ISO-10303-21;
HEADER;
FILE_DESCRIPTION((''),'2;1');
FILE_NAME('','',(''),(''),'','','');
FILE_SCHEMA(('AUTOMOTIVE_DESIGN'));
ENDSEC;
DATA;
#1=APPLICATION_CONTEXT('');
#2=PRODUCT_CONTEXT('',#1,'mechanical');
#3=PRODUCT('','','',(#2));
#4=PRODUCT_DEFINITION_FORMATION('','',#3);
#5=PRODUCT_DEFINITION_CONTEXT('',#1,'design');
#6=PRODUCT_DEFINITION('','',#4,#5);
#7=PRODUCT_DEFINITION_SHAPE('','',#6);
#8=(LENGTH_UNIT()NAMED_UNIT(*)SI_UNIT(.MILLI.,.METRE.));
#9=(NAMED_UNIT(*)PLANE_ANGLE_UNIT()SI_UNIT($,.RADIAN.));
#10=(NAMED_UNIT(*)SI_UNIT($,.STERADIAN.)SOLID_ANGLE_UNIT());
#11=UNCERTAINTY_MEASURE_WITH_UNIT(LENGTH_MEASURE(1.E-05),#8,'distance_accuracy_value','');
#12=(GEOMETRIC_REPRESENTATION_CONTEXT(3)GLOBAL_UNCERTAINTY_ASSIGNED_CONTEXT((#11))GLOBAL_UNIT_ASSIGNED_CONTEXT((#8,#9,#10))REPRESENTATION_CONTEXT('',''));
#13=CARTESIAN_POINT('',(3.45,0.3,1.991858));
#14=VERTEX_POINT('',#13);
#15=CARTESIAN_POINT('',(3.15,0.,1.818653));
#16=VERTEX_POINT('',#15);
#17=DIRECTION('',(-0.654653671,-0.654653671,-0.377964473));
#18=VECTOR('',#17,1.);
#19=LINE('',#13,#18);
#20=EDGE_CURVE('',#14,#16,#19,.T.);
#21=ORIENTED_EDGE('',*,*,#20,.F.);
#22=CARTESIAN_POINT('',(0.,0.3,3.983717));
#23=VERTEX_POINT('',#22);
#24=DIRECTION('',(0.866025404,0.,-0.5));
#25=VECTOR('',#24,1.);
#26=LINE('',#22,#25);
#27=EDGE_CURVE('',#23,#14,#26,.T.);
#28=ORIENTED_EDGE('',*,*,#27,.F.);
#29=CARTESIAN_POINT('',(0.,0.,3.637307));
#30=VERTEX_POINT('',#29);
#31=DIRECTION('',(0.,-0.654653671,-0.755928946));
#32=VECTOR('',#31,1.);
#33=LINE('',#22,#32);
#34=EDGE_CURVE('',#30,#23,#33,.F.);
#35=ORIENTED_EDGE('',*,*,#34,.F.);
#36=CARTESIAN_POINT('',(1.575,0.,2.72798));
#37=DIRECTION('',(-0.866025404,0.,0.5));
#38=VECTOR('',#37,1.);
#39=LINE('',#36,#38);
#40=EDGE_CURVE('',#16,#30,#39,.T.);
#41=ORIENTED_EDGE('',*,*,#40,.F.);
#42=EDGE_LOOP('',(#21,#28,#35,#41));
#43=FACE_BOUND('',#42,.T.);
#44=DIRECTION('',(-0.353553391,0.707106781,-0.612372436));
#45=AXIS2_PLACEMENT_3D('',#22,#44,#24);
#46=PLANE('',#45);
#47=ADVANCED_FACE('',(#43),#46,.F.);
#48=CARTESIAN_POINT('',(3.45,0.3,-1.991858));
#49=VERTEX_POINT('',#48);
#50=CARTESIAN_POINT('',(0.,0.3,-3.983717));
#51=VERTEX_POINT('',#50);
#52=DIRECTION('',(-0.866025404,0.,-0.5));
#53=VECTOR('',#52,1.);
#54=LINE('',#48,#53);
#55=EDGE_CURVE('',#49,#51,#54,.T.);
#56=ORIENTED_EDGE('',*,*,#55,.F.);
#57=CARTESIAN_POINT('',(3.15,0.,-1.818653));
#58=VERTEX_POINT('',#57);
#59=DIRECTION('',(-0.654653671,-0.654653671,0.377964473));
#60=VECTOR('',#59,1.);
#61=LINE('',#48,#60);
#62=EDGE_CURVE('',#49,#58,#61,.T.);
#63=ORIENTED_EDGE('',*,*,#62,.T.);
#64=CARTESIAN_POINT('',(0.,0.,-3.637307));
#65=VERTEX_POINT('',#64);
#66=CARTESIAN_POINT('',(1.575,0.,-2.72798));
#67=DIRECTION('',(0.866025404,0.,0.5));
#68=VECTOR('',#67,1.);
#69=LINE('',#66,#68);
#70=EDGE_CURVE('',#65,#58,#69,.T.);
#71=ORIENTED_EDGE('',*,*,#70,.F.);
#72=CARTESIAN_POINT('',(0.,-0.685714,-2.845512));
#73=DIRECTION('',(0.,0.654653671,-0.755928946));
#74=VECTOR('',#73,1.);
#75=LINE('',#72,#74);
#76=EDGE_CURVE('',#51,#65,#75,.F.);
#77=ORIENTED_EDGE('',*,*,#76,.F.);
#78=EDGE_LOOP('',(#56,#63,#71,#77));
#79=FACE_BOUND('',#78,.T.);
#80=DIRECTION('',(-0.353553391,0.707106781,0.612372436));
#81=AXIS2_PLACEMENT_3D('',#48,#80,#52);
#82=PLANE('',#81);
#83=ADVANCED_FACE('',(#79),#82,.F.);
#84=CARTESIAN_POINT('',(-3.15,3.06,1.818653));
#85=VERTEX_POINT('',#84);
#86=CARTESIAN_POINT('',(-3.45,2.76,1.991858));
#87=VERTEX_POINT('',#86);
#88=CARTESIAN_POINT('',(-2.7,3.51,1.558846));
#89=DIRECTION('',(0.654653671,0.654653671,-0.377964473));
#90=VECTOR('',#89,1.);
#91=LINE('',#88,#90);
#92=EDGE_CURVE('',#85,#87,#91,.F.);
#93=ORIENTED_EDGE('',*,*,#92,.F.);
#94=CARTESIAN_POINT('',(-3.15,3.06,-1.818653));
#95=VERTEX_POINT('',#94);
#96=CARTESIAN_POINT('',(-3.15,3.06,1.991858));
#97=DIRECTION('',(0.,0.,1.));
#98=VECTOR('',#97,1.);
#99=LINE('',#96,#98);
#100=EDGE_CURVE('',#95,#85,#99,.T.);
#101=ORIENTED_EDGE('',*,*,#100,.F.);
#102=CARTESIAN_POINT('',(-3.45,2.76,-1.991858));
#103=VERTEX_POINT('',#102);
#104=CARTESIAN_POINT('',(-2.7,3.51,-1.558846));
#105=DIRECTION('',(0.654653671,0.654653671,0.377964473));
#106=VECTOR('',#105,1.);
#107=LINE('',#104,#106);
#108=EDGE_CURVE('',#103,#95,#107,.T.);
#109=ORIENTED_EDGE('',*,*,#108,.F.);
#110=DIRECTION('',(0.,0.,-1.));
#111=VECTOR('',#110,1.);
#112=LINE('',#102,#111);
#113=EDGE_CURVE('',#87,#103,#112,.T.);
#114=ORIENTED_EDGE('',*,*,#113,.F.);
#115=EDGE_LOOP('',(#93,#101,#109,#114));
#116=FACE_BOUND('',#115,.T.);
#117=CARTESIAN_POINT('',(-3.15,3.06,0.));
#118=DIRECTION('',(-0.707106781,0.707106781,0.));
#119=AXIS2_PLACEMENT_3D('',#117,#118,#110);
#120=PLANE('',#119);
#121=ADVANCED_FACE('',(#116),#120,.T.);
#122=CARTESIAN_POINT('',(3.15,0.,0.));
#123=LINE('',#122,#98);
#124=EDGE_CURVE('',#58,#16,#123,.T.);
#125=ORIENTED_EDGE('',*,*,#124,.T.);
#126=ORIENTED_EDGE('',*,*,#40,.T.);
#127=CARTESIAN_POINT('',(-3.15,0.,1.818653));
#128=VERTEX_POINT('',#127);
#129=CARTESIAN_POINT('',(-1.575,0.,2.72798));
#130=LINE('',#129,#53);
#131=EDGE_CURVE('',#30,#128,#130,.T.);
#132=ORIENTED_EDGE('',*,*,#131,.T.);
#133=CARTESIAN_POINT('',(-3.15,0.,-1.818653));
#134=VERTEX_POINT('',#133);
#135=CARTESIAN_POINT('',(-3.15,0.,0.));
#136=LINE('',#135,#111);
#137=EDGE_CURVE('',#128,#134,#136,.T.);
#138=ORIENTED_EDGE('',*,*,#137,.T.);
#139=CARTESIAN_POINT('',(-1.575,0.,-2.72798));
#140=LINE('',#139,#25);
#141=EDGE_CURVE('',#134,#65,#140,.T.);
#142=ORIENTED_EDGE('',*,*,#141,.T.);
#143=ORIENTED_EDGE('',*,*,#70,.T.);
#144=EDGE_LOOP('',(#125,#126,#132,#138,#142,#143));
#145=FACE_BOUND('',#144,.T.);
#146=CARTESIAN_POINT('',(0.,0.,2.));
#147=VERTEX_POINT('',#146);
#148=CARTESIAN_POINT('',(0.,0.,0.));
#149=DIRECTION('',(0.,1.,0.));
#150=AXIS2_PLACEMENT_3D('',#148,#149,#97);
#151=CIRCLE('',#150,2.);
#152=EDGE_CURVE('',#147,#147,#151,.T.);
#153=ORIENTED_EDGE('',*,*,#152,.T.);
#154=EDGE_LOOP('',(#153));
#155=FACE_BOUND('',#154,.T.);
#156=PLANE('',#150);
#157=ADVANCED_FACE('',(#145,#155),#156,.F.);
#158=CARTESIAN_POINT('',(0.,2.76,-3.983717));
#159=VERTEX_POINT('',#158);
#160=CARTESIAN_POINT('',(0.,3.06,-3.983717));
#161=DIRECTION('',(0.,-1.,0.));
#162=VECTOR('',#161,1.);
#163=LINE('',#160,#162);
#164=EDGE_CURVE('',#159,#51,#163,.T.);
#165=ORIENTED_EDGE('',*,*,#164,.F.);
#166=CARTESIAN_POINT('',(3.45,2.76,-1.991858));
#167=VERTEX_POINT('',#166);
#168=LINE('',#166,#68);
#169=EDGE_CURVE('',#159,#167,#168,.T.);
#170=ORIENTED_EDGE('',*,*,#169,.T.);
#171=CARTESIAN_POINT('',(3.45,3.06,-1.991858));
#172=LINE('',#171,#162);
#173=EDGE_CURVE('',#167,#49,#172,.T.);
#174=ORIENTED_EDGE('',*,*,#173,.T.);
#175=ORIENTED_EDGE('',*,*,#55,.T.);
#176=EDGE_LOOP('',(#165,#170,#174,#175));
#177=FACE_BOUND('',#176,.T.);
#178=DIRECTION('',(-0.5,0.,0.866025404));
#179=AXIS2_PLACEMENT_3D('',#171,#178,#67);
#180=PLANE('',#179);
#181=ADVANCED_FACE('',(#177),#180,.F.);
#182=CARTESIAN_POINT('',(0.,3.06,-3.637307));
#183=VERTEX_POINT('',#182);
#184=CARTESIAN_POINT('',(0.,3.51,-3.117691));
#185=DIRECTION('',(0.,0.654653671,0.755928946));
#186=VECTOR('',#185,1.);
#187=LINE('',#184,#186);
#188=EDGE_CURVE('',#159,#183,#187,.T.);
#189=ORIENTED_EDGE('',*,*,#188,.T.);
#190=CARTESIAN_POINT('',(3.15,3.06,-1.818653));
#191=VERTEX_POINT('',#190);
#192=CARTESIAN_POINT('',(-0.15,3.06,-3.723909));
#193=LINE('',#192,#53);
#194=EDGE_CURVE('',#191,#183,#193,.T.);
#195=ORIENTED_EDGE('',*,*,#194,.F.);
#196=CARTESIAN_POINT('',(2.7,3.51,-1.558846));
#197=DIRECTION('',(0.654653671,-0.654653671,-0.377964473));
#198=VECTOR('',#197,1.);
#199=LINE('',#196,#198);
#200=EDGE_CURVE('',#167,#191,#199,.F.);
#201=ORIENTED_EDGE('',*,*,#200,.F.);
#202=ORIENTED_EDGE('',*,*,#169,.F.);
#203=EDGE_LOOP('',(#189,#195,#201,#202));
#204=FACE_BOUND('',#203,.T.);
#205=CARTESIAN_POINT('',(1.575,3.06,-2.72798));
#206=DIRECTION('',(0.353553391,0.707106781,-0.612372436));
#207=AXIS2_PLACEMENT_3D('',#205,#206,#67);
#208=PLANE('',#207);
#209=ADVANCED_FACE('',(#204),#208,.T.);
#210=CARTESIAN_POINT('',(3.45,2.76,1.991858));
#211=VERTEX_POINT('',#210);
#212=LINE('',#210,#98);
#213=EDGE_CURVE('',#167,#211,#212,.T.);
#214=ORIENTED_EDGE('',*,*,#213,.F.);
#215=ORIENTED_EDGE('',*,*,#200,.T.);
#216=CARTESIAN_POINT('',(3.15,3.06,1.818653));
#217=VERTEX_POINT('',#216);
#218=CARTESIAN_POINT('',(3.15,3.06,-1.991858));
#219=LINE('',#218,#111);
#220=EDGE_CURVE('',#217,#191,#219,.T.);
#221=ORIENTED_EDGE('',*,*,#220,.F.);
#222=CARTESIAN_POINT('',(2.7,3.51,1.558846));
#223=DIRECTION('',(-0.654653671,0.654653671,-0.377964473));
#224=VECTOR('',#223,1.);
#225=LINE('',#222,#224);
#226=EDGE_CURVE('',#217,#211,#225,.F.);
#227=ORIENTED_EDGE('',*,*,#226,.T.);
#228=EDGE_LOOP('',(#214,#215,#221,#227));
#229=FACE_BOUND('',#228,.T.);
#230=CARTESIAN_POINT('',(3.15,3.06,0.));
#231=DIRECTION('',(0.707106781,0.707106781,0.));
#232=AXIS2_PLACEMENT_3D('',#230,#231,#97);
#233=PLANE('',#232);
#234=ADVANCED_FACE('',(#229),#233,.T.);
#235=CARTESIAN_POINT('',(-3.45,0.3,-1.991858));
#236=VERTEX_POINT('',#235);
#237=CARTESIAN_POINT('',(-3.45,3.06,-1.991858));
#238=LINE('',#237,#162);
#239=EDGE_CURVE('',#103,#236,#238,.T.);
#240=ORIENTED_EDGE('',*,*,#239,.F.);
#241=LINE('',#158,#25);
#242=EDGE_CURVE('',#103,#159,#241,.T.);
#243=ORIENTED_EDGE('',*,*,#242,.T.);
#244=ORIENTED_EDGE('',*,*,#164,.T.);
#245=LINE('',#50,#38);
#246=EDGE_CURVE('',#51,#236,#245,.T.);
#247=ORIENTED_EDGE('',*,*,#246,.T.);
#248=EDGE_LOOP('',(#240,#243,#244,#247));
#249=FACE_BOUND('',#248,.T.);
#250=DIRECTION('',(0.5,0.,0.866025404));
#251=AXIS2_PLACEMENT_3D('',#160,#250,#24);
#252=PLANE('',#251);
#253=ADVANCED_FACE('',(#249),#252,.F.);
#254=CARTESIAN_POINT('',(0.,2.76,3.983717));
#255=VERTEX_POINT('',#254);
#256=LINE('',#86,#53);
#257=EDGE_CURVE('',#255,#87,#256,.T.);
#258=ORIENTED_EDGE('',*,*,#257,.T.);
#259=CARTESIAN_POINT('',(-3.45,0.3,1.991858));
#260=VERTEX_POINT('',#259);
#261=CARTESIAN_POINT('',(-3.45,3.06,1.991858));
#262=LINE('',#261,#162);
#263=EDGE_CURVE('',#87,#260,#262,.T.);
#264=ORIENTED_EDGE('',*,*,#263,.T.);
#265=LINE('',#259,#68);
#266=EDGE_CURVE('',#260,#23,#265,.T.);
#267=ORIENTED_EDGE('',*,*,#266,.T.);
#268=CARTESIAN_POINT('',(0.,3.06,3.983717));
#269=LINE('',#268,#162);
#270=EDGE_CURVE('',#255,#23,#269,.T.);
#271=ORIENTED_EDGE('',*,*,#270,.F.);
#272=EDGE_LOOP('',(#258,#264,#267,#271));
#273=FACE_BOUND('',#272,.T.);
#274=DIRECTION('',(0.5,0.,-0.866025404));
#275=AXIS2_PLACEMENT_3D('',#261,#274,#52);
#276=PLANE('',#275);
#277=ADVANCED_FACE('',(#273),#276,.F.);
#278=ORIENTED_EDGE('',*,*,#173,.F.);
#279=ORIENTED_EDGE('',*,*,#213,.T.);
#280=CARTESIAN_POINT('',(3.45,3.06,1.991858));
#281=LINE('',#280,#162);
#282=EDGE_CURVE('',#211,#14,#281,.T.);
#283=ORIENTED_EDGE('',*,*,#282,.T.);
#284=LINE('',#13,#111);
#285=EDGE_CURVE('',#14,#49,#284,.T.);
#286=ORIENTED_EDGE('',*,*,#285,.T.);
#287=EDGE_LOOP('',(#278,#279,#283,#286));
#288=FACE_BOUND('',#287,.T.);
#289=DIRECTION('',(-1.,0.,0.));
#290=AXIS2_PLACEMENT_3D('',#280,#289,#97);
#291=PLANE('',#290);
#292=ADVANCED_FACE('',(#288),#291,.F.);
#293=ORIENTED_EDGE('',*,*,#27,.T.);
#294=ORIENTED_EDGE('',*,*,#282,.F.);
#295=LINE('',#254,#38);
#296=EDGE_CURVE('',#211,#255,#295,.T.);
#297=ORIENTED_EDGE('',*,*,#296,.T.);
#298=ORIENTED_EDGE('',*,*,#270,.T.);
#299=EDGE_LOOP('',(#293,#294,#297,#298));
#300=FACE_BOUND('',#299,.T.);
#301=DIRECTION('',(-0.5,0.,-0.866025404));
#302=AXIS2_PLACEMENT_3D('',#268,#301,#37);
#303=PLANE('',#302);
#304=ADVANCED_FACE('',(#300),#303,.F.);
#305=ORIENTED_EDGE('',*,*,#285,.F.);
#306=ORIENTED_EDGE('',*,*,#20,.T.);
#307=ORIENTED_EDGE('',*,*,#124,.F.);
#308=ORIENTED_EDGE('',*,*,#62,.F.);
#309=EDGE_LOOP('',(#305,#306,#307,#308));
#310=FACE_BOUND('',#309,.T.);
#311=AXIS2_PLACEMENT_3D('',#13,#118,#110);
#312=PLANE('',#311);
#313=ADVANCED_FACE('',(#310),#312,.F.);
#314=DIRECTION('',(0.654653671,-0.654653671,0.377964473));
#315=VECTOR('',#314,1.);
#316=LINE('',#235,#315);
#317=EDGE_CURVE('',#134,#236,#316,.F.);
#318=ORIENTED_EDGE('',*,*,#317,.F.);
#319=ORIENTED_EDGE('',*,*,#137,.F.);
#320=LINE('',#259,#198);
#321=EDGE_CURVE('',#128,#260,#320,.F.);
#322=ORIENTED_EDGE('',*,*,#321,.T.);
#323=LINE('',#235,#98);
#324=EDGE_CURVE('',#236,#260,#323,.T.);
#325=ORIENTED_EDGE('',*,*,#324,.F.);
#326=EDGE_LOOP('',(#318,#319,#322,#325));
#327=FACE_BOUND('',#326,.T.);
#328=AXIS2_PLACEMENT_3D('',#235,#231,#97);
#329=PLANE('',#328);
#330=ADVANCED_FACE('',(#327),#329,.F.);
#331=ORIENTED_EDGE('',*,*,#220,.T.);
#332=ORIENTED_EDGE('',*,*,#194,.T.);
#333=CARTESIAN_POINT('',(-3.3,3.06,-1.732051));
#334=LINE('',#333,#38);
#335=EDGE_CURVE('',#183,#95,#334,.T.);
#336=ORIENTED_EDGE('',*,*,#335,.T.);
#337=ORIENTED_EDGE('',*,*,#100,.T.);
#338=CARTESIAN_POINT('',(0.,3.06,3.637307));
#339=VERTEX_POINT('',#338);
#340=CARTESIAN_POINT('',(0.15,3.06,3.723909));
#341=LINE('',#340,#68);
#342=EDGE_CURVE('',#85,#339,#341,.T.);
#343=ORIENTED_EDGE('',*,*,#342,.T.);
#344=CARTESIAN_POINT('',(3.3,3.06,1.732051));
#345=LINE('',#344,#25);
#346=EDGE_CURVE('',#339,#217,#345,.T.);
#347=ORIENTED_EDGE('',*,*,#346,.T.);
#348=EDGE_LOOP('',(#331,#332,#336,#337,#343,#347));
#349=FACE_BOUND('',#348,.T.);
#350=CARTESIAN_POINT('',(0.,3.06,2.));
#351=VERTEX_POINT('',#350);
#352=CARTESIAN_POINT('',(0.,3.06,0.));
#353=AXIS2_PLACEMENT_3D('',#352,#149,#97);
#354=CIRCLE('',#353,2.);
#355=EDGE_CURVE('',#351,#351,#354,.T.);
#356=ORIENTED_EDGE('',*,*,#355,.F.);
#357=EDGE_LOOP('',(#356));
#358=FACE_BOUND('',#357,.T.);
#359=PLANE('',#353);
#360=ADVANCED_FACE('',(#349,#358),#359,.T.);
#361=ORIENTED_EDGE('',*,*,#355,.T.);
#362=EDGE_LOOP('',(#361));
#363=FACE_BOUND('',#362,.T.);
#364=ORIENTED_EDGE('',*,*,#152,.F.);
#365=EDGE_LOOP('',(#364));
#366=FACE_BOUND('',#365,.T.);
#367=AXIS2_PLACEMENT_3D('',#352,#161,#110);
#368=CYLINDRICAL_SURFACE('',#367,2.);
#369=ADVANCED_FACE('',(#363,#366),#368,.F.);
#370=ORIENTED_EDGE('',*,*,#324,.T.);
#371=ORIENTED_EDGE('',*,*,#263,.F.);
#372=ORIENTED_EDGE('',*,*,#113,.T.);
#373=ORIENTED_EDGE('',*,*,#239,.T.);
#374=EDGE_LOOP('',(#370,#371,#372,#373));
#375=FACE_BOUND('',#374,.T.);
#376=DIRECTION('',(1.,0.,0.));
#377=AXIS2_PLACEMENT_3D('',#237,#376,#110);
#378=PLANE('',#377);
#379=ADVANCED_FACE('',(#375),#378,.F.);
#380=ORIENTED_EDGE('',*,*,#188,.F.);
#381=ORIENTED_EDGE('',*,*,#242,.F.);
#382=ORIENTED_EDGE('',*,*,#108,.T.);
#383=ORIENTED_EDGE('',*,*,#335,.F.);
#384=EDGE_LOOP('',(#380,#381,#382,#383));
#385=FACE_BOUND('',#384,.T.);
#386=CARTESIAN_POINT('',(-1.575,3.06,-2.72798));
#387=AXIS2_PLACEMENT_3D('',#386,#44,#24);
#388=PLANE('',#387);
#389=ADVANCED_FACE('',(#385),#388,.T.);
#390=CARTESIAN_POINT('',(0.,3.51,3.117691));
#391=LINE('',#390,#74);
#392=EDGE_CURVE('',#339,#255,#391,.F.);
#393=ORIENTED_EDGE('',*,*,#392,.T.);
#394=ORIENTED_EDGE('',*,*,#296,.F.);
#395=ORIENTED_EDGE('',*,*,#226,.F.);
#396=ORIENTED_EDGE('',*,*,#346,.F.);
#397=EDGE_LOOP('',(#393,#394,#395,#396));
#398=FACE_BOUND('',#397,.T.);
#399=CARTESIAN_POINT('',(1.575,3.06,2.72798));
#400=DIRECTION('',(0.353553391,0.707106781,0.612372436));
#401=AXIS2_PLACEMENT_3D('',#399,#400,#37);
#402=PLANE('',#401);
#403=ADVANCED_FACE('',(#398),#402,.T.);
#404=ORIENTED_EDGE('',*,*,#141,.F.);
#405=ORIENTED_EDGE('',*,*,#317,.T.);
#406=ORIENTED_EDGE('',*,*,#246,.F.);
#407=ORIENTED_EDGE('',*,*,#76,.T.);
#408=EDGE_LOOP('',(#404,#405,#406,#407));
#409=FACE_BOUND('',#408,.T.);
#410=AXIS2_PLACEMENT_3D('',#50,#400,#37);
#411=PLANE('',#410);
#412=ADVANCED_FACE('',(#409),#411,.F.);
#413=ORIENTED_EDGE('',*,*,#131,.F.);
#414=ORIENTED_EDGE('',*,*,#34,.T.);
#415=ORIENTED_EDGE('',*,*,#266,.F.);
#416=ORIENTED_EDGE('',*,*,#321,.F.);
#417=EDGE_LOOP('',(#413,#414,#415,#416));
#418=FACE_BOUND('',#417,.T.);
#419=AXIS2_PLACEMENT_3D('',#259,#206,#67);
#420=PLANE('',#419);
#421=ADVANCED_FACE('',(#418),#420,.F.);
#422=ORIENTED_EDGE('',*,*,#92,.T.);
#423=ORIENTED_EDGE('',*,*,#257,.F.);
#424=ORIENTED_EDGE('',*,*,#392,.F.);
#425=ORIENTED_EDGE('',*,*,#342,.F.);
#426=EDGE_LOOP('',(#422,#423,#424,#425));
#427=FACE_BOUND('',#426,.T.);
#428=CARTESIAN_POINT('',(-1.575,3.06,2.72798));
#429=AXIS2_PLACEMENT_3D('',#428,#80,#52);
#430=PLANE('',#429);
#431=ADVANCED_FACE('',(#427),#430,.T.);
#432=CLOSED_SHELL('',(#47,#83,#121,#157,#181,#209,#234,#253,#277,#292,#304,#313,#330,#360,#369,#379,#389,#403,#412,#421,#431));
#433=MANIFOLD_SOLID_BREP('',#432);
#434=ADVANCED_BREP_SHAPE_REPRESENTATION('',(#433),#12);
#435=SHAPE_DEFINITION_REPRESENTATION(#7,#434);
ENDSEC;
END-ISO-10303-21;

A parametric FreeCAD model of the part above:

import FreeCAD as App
import Part
import Sketcher
from FreeCAD import Vector
Q = App.Units.Quantity


def edges_at(feature, points):
    """Names of the edges that pass closest to the given points."""
    edges = feature.Shape.Edges
    near = lambda p: min(range(len(edges)), key=lambda i: edges[i].distToShape(Part.Vertex(*p))[0])
    return sorted({f"Edge{near(p) + 1}" for p in points})

doc = App.newDocument("Part")
body = doc.addObject("PartDesign::Body", "Body")

# Sketch on XZ plane
sketch1 = body.newObject("Sketcher::SketchObject", "Sketch")
sketch1.AttachmentSupport = (doc.getObject("XZ_Plane"), [""])
sketch1.MapMode = "FlatFace"
sketch1.addGeometry([
    Part.LineSegment(Vector(0, -4, 0), Vector(-3.5, -2, 0)),  # 0
    Part.LineSegment(Vector(-3.5, -2, 0), Vector(-3.5, 2, 0)),  # 1
    Part.LineSegment(Vector(-3.5, 2, 0), Vector(0, 4, 0)),  # 2
    Part.LineSegment(Vector(0, 4, 0), Vector(3.5, 2, 0)),  # 3
    Part.LineSegment(Vector(3.5, 2, 0), Vector(3.5, -2, 0)),  # 4
    Part.LineSegment(Vector(3.5, -2, 0), Vector(0, -4, 0)),  # 5
    Part.Circle(Vector(0, 0, 0), Vector(0, 0, 1), 2),  # 6
], False)
sketch1.addConstraint([
    Sketcher.Constraint("Coincident", 0, 2, 1, 1),
    Sketcher.Constraint("Coincident", 1, 2, 2, 1),
    Sketcher.Constraint("Coincident", 2, 2, 3, 1),
    Sketcher.Constraint("Coincident", 3, 2, 4, 1),
    Sketcher.Constraint("Coincident", 4, 2, 5, 1),
    Sketcher.Constraint("Coincident", 5, 2, 0, 1),
    Sketcher.Constraint("Vertical", 1),
    Sketcher.Constraint("Vertical", 4),
    Sketcher.Constraint("Coincident", 6, 3, -1, 1),
    Sketcher.Constraint("Symmetric", 0, 2, 3, 2, -1, 1),
    Sketcher.Constraint("Symmetric", 2, 2, 5, 2, -1, 1),
    Sketcher.Constraint("PointOnObject", 2, 2, -2),
    Sketcher.Constraint("Parallel", 2, 5),
    Sketcher.Constraint("Horizontal", 1, 2, 3, 2),
    Sketcher.Constraint("Diameter", 6, Q("4 mm")),
    Sketcher.Constraint("Angle", 0, Q("150 deg")),
    Sketcher.Constraint("DistanceX", 1, 2, 3, 2, Q("6.9 mm")),
    Sketcher.Constraint("DistanceY", 1, 1, 1, 2, Q("3.983717 mm")),
])
pad1 = body.newObject("PartDesign::Pad", "Pad")
pad1.Profile = sketch1
pad1.Length = 3.06
pad1.Reversed = True
doc.recompute()

chamfer = body.newObject("PartDesign::Chamfer", "Chamfer")
chamfer.Base = (pad1, edges_at(pad1, [
    (-3.45, 3.06, 0),
    (-1.725, 3.06, 2.988),
    (1.725, 3.06, 2.988),
    (3.45, 3.06, 0),
    (1.725, 3.06, -2.988),
    (3.45, 0, 0),
    (1.725, 0, 2.988),
    (-1.725, 0, 2.988),
    (-1.725, 3.06, -2.988),
    (-3.45, 0, 0),
    (-1.725, 0, -2.988),
    (1.725, 0, -2.988),
]))
chamfer.Size = 0.3

doc.recompute()
